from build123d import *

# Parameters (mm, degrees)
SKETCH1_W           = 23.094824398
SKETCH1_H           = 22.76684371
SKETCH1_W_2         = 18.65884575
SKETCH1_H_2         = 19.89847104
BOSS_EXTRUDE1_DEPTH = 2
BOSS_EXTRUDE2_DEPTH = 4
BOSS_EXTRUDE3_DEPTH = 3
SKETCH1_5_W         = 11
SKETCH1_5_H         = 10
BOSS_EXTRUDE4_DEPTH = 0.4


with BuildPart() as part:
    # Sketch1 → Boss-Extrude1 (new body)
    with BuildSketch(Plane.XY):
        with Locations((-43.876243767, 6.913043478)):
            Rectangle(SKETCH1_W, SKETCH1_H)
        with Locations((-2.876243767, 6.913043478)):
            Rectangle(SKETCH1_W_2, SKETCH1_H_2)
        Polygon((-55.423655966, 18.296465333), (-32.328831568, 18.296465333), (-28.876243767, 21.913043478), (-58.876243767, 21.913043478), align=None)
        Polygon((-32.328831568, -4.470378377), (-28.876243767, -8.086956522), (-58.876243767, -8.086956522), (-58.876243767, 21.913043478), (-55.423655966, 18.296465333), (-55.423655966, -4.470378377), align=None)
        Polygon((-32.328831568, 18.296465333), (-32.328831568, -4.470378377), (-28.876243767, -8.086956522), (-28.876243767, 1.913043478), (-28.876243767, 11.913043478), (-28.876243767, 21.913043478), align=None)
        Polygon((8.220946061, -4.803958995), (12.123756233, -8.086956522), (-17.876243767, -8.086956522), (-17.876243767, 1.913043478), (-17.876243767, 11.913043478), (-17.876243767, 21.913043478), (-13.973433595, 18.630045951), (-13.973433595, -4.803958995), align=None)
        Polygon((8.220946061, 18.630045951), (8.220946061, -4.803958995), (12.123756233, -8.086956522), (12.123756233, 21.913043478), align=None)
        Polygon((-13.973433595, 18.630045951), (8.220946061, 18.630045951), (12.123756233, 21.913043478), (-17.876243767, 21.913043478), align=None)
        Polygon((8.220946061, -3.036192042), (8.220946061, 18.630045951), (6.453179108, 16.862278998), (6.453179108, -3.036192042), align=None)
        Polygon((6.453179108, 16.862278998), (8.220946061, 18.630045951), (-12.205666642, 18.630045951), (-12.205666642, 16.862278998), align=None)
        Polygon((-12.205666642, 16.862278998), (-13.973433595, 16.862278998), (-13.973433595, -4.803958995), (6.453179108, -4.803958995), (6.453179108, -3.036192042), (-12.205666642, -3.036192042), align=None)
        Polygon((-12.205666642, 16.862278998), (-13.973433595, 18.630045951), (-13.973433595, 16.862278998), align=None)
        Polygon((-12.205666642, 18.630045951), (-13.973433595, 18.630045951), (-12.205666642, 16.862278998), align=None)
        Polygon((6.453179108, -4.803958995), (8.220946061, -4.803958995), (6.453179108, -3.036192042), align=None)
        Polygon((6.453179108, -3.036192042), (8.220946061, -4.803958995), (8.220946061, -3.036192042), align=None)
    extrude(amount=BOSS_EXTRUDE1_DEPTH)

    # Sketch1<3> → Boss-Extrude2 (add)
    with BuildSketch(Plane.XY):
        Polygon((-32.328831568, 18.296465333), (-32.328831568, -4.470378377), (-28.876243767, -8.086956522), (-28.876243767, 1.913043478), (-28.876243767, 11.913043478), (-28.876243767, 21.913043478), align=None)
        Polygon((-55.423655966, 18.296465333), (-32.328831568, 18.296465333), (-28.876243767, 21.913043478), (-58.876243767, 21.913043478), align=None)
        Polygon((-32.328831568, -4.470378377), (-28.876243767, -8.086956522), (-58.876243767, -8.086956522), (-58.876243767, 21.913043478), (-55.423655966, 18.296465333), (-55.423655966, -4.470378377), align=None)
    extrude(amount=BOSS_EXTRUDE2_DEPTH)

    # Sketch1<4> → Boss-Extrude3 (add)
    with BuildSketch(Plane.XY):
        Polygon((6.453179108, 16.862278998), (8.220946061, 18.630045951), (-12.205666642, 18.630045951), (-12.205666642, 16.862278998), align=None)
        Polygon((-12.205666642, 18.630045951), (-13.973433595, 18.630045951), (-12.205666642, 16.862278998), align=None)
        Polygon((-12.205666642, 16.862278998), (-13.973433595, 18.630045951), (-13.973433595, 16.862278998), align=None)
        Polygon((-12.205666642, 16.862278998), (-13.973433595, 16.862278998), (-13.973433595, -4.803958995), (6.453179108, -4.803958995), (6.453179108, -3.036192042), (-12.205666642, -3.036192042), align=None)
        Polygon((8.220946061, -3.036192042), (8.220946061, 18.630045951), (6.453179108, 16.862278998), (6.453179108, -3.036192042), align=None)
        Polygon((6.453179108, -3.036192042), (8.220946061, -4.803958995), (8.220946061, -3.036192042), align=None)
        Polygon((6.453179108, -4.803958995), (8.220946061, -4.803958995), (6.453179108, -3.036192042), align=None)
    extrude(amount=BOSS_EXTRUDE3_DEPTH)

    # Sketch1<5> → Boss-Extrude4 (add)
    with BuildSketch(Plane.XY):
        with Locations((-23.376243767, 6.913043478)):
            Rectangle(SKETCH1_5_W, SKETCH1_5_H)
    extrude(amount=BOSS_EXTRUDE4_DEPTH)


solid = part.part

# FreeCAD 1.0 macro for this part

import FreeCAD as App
import Part
import Sketcher
Q = App.Units.Quantity


def add_polygon(sketch, points):
    """Adds a closed chain of lines whose ends are joined by coincident constraints."""
    first, n = sketch.GeometryCount, len(points)
    for a, b in zip(points, points[1:] + points[:1]):
        sketch.addGeometry(Part.LineSegment(App.Vector(*a, 0), App.Vector(*b, 0)), False)
    for i in range(n):
        sketch.addConstraint(Sketcher.Constraint("Coincident", first + i, 2, first + (i + 1) % n, 1))

doc = App.newDocument("Part")
body = doc.addObject("PartDesign::Body", "Body")
body.AllowCompound = True

# Sketch on XY plane
sketch1 = body.newObject("Sketcher::SketchObject", "Sketch")
sketch1.AttachmentSupport = (doc.getObject("XY_Plane"), [""])
sketch1.MapMode = "FlatFace"
add_polygon(sketch1, [(-28.876244, 21.913043), (-58.876244, 21.913043), (-58.876244, -8.086957), (-28.876244, -8.086957)])  # lines 0-3
add_polygon(sketch1, [(-17.876244, -8.086957), (12.123756, -8.086957), (12.123756, 21.913043), (-17.876244, 21.913043)])  # lines 4-7
sketch1.addConstraint([
    Sketcher.Constraint("Horizontal", 0),
    Sketcher.Constraint("Vertical", 1),
    Sketcher.Constraint("Horizontal", 2),
    Sketcher.Constraint("Vertical", 3),
    Sketcher.Constraint("Horizontal", 4),
    Sketcher.Constraint("Vertical", 5),
    Sketcher.Constraint("Horizontal", 6),
    Sketcher.Constraint("Vertical", 7),
    Sketcher.Constraint("Horizontal", 2, 2, 4, 2),
    Sketcher.Constraint("Horizontal", 3, 2, 5, 2),
    Sketcher.Constraint("Equal", 2, 4),
    Sketcher.Constraint("Equal", 6, 1),
    Sketcher.Constraint("DistanceX", 0, 2, 0, 1, Q("30 mm")),
    Sketcher.Constraint("DistanceX", 2, 2, 4, 2, Q("41 mm")),
    Sketcher.Constraint("DistanceX", 0, 2, -1, 1, Q("58.876244 mm")),
    Sketcher.Constraint("DistanceY", -1, 1, 0, 2, Q("21.913043 mm")),
])
pad1 = body.newObject("PartDesign::Pad", "Pad")
pad1.Profile = sketch1
pad1.Length = 2

# Sketch on XY plane
sketch2 = body.newObject("Sketcher::SketchObject", "Sketch001")
sketch2.AttachmentSupport = (doc.getObject("XY_Plane"), [""])
sketch2.MapMode = "FlatFace"
add_polygon(sketch2, [(-28.876244, -8.086957), (-28.876244, 21.913043), (-58.876244, 21.913043), (-58.876244, -8.086957)])  # lines 0-3
add_polygon(sketch2, [(-32.328832, 18.296465), (-32.328832, -4.470378), (-55.423656, -4.470378), (-55.423656, 18.296465)])  # lines 4-7
sketch2.addConstraint([
    Sketcher.Constraint("Vertical", 0),
    Sketcher.Constraint("Horizontal", 1),
    Sketcher.Constraint("Vertical", 2),
    Sketcher.Constraint("Horizontal", 3),
    Sketcher.Constraint("Vertical", 4),
    Sketcher.Constraint("Horizontal", 5),
    Sketcher.Constraint("Vertical", 6),
    Sketcher.Constraint("Horizontal", 7),
    Sketcher.Constraint("Equal", 3, 0),
    Sketcher.Constraint("DistanceX", 1, 2, 1, 1, Q("30 mm")),
    Sketcher.Constraint("DistanceX", 5, 2, 5, 1, Q("23.094824 mm")),
    Sketcher.Constraint("DistanceY", 4, 2, 4, 1, Q("22.766844 mm")),
    Sketcher.Constraint("DistanceX", 4, 2, -1, 1, Q("32.328832 mm")),
    Sketcher.Constraint("DistanceY", 4, 2, -1, 1, Q("4.470378 mm")),
    Sketcher.Constraint("DistanceY", 3, 2, 4, 2, Q("3.616578 mm")),
    Sketcher.Constraint("DistanceX", 0, 2, -1, 1, Q("28.876244 mm")),
])
pad2 = body.newObject("PartDesign::Pad", "Pad001")
pad2.Profile = sketch2
pad2.Length = 4

# Sketch on XY plane
sketch3 = body.newObject("Sketcher::SketchObject", "Sketch002")
sketch3.AttachmentSupport = (doc.getObject("XY_Plane"), [""])
sketch3.MapMode = "FlatFace"
add_polygon(sketch3, [(-13.973434, -4.803959), (8.220946, -4.803959), (8.220946, 18.630046), (-13.973434, 18.630046)])  # lines 0-3
add_polygon(sketch3, [(6.453179, 16.862279), (6.453179, -3.036192), (-12.205667, -3.036192), (-12.205667, 16.862279)])  # lines 4-7
sketch3.addConstraint([
    Sketcher.Constraint("Horizontal", 0),
    Sketcher.Constraint("Vertical", 1),
    Sketcher.Constraint("Horizontal", 2),
    Sketcher.Constraint("Vertical", 3),
    Sketcher.Constraint("Vertical", 4),
    Sketcher.Constraint("Horizontal", 5),
    Sketcher.Constraint("Vertical", 6),
    Sketcher.Constraint("Horizontal", 7),
    Sketcher.Constraint("DistanceX", 0, 1, 0, 2, Q("22.19438 mm")),
    Sketcher.Constraint("DistanceY", 4, 2, 4, 1, Q("19.898471 mm")),
    Sketcher.Constraint("DistanceX", 5, 2, 5, 1, Q("18.658846 mm")),
    Sketcher.Constraint("DistanceY", 1, 1, 1, 2, Q("23.434005 mm")),
    Sketcher.Constraint("DistanceY", 0, 2, -1, 1, Q("4.803959 mm")),
    Sketcher.Constraint("DistanceX", -1, 1, 4, 2, Q("6.453179 mm")),
    Sketcher.Constraint("DistanceY", -1, 1, 6, 2, Q("16.862279 mm")),
    Sketcher.Constraint("DistanceX", -1, 1, 0, 2, Q("8.220946 mm")),
])
pad3 = body.newObject("PartDesign::Pad", "Pad002")
pad3.Profile = sketch3
pad3.Length = 3

# Sketch on XY plane
sketch4 = body.newObject("Sketcher::SketchObject", "Sketch003")
sketch4.AttachmentSupport = (doc.getObject("XY_Plane"), [""])
sketch4.MapMode = "FlatFace"
add_polygon(sketch4, [(-28.876244, 11.913043), (-28.876244, 1.913043), (-17.876244, 1.913043), (-17.876244, 11.913043)])  # lines 0-3
sketch4.addConstraint([
    Sketcher.Constraint("Vertical", 0),
    Sketcher.Constraint("Horizontal", 1),
    Sketcher.Constraint("Vertical", 2),
    Sketcher.Constraint("Horizontal", 3),
    Sketcher.Constraint("DistanceX", 1, 1, 1, 2, Q("11 mm")),
    Sketcher.Constraint("DistanceY", 0, 2, 0, 1, Q("10 mm")),
    Sketcher.Constraint("DistanceX", 0, 2, -1, 1, Q("28.876244 mm")),
    Sketcher.Constraint("DistanceY", -1, 1, 0, 2, Q("1.913043 mm")),
])
pad4 = body.newObject("PartDesign::Pad", "Pad003")
pad4.Profile = sketch4
pad4.Length = 0.4

doc.recompute()
